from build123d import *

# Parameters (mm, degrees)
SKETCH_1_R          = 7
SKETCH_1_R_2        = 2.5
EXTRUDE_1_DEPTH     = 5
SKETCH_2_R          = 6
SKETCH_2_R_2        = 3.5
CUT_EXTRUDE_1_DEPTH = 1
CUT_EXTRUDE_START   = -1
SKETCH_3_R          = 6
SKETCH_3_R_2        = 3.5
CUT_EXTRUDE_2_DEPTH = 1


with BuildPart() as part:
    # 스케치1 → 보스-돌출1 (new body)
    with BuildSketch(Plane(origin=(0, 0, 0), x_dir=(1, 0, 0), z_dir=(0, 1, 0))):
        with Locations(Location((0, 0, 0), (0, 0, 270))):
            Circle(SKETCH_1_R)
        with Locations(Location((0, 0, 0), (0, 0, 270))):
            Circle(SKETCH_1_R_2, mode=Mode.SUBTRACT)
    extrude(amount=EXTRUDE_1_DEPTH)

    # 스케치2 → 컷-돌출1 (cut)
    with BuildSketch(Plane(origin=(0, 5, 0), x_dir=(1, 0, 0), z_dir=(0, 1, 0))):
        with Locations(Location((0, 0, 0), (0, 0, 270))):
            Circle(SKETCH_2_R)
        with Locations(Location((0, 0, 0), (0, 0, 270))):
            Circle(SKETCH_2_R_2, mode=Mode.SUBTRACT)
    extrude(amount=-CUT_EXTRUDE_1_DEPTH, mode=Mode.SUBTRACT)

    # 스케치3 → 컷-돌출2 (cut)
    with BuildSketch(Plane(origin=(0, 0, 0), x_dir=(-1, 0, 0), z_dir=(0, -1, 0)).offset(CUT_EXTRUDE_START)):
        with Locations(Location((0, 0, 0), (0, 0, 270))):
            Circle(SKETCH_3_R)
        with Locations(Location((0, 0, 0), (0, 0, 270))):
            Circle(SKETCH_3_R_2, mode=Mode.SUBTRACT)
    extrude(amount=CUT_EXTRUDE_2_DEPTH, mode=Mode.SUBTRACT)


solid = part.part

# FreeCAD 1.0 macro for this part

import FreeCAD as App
import Part
import Sketcher

V = App.Vector
Q = App.Units.Quantity

doc = App.newDocument("Part")
body = doc.addObject("PartDesign::Body", "Body")

# Sketch on XZ plane
sketch1 = body.newObject("Sketcher::SketchObject", "Sketch")
sketch1.AttachmentSupport = (doc.getObject("XZ_Plane"), [""])
sketch1.MapMode = "FlatFace"
sketch1.addGeometry([
    Part.Circle(V(0, 0, 0), V(0, 0, 1), 7),
    Part.Circle(V(0, 0, 0), V(0, 0, 1), 2.5),
], False)
sketch1.addConstraint([
    Sketcher.Constraint("Coincident", 0, 3, -1, 1),
    Sketcher.Constraint("Coincident", 1, 3, -1, 1),
    Sketcher.Constraint("Diameter", 0, Q("14 mm")),
    Sketcher.Constraint("Diameter", 1, Q("5 mm")),
])
pad1 = body.newObject("PartDesign::Pad", "Pad")
pad1.Profile = sketch1
pad1.Length = 5
pad1.Reversed = True

# Sketch on XZ plane
sketch2 = body.newObject("Sketcher::SketchObject", "Sketch001")
sketch2.AttachmentSupport = (doc.getObject("XZ_Plane"), [""])
sketch2.MapMode = "FlatFace"
sketch2.AttachmentOffset = App.Placement(V(0, 0, -5), App.Rotation())
sketch2.addGeometry([
    Part.Circle(V(0, 0, 0), V(0, 0, 1), 6),
    Part.Circle(V(0, 0, 0), V(0, 0, 1), 3.5),
], False)
sketch2.addConstraint([
    Sketcher.Constraint("Coincident", 0, 3, -1, 1),
    Sketcher.Constraint("Coincident", 1, 3, -1, 1),
    Sketcher.Constraint("Diameter", 0, Q("12 mm")),
    Sketcher.Constraint("Diameter", 1, Q("7 mm")),
])
pocket1 = body.newObject("PartDesign::Pocket", "Pocket")
pocket1.Profile = sketch2
pocket1.Length = 1
pocket1.Reversed = True

# Sketch on XZ plane
sketch3 = body.newObject("Sketcher::SketchObject", "Sketch002")
sketch3.AttachmentSupport = (doc.getObject("XZ_Plane"), [""])
sketch3.MapMode = "FlatFace"
sketch3.AttachmentOffset = App.Placement(V(0, 0, -1), App.Rotation())
sketch3.addGeometry([
    Part.Circle(V(0, 0, 0), V(0, 0, 1), 6),
    Part.Circle(V(0, 0, 0), V(0, 0, 1), 3.5),
], False)
sketch3.addConstraint([
    Sketcher.Constraint("Coincident", 0, 3, -1, 1),
    Sketcher.Constraint("Coincident", 1, 3, -1, 1),
    Sketcher.Constraint("Diameter", 0, Q("12 mm")),
    Sketcher.Constraint("Diameter", 1, Q("7 mm")),
])
pocket2 = body.newObject("PartDesign::Pocket", "Pocket001")
pocket2.Profile = sketch3
pocket2.Length = 1
pocket2.Reversed = True

doc.recompute()
